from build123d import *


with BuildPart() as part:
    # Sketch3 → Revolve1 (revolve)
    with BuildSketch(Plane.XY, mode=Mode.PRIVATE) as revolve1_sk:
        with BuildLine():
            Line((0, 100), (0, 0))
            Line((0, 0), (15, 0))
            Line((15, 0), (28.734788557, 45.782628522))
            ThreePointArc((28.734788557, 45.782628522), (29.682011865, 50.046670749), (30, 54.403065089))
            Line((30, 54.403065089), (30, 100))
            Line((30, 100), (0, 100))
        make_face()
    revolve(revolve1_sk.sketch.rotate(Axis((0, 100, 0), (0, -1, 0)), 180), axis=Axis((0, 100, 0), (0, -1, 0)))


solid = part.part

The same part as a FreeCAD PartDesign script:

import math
import FreeCAD as App
import Part
import Sketcher
from FreeCAD import Vector

doc = App.newDocument("Part")
params = doc.addObject("Spreadsheet::Sheet", "Params")
for row, (alias, value) in enumerate([
    ("sketch1_radius", "30 mm"),
    ("sketch1_width", "15 mm"),
    ("sketch1_height", "100 mm"),
    ("revolution_angle", "360 deg"),
], start=1):
    params.set(f"A{row}", alias)
    params.set(f"B{row}", "=" + value)
    params.setAlias(f"B{row}", alias)

body = doc.addObject("PartDesign::Body", "Body")

sketch1 = doc.addObject("Sketcher::SketchObject", "Sketch")
body.addObject(sketch1)
sketch1.AttachmentSupport = (doc.XY_Plane, [""])
sketch1.MapMode = "FlatFace"
sketch1.addGeometry(Part.LineSegment(Vector(0, 100, 0), Vector(0, 0, 0)), False)
sketch1.addGeometry(Part.LineSegment(Vector(0, 0, 0), Vector(15, 0, 0)), False)
sketch1.addGeometry(Part.LineSegment(Vector(15, 0, 0), Vector(29, 46, 0)), False)
sketch1.addGeometry(Part.ArcOfCircle(Part.Circle(Vector(0, 54, 0), Vector(0, 0, 1), 30), math.radians(-16.7), math.radians(0)), False)
sketch1.addGeometry(Part.LineSegment(Vector(30, 54, 0), Vector(30, 100, 0)), False)
sketch1.addGeometry(Part.LineSegment(Vector(30, 100, 0), Vector(0, 100, 0)), False)
sketch1.addConstraint(Sketcher.Constraint("Coincident", 0, 2, 1, 1))
sketch1.addConstraint(Sketcher.Constraint("Coincident", 1, 2, 2, 1))
sketch1.addConstraint(Sketcher.Constraint("Tangent", 2, 2, 3, 1))
sketch1.addConstraint(Sketcher.Constraint("Tangent", 3, 2, 4, 1))
sketch1.addConstraint(Sketcher.Constraint("Coincident", 4, 2, 5, 1))
sketch1.addConstraint(Sketcher.Constraint("Coincident", 5, 2, 0, 1))
sketch1.addConstraint(Sketcher.Constraint("Vertical", 0))
sketch1.addConstraint(Sketcher.Constraint("Horizontal", 1))
sketch1.addConstraint(Sketcher.Constraint("Vertical", 4))
sketch1.addConstraint(Sketcher.Constraint("Horizontal", 5))
sketch1.addConstraint(Sketcher.Constraint("Coincident", 0, 2, -1, 1))
sketch1.addConstraint(Sketcher.Constraint("PointOnObject", 3, 3, -2))
sketch1.addConstraint(Sketcher.Constraint("Radius", 3, 30.0))
sketch1.addConstraint(Sketcher.Constraint("DistanceX", 1, 1, 1, 2, 15.0))
sketch1.addConstraint(Sketcher.Constraint("DistanceY", 0, 2, 0, 1, 100.0))
sketch1.addConstraint(Sketcher.Constraint("DistanceY", 4, 1, 4, 2, 45.596935))
sketch1.setExpression("Constraints[12]", "Params.sketch1_radius")
sketch1.setExpression("Constraints[13]", "Params.sketch1_width")
sketch1.setExpression("Constraints[14]", "Params.sketch1_height")
revolution = doc.addObject("PartDesign::Revolution", "Revolution")
body.addObject(revolution)
revolution.Profile = sketch1
revolution.ReferenceAxis = (sketch1, ["V_Axis"])
revolution.setExpression("Angle", "Params.revolution_angle")

doc.recompute()
